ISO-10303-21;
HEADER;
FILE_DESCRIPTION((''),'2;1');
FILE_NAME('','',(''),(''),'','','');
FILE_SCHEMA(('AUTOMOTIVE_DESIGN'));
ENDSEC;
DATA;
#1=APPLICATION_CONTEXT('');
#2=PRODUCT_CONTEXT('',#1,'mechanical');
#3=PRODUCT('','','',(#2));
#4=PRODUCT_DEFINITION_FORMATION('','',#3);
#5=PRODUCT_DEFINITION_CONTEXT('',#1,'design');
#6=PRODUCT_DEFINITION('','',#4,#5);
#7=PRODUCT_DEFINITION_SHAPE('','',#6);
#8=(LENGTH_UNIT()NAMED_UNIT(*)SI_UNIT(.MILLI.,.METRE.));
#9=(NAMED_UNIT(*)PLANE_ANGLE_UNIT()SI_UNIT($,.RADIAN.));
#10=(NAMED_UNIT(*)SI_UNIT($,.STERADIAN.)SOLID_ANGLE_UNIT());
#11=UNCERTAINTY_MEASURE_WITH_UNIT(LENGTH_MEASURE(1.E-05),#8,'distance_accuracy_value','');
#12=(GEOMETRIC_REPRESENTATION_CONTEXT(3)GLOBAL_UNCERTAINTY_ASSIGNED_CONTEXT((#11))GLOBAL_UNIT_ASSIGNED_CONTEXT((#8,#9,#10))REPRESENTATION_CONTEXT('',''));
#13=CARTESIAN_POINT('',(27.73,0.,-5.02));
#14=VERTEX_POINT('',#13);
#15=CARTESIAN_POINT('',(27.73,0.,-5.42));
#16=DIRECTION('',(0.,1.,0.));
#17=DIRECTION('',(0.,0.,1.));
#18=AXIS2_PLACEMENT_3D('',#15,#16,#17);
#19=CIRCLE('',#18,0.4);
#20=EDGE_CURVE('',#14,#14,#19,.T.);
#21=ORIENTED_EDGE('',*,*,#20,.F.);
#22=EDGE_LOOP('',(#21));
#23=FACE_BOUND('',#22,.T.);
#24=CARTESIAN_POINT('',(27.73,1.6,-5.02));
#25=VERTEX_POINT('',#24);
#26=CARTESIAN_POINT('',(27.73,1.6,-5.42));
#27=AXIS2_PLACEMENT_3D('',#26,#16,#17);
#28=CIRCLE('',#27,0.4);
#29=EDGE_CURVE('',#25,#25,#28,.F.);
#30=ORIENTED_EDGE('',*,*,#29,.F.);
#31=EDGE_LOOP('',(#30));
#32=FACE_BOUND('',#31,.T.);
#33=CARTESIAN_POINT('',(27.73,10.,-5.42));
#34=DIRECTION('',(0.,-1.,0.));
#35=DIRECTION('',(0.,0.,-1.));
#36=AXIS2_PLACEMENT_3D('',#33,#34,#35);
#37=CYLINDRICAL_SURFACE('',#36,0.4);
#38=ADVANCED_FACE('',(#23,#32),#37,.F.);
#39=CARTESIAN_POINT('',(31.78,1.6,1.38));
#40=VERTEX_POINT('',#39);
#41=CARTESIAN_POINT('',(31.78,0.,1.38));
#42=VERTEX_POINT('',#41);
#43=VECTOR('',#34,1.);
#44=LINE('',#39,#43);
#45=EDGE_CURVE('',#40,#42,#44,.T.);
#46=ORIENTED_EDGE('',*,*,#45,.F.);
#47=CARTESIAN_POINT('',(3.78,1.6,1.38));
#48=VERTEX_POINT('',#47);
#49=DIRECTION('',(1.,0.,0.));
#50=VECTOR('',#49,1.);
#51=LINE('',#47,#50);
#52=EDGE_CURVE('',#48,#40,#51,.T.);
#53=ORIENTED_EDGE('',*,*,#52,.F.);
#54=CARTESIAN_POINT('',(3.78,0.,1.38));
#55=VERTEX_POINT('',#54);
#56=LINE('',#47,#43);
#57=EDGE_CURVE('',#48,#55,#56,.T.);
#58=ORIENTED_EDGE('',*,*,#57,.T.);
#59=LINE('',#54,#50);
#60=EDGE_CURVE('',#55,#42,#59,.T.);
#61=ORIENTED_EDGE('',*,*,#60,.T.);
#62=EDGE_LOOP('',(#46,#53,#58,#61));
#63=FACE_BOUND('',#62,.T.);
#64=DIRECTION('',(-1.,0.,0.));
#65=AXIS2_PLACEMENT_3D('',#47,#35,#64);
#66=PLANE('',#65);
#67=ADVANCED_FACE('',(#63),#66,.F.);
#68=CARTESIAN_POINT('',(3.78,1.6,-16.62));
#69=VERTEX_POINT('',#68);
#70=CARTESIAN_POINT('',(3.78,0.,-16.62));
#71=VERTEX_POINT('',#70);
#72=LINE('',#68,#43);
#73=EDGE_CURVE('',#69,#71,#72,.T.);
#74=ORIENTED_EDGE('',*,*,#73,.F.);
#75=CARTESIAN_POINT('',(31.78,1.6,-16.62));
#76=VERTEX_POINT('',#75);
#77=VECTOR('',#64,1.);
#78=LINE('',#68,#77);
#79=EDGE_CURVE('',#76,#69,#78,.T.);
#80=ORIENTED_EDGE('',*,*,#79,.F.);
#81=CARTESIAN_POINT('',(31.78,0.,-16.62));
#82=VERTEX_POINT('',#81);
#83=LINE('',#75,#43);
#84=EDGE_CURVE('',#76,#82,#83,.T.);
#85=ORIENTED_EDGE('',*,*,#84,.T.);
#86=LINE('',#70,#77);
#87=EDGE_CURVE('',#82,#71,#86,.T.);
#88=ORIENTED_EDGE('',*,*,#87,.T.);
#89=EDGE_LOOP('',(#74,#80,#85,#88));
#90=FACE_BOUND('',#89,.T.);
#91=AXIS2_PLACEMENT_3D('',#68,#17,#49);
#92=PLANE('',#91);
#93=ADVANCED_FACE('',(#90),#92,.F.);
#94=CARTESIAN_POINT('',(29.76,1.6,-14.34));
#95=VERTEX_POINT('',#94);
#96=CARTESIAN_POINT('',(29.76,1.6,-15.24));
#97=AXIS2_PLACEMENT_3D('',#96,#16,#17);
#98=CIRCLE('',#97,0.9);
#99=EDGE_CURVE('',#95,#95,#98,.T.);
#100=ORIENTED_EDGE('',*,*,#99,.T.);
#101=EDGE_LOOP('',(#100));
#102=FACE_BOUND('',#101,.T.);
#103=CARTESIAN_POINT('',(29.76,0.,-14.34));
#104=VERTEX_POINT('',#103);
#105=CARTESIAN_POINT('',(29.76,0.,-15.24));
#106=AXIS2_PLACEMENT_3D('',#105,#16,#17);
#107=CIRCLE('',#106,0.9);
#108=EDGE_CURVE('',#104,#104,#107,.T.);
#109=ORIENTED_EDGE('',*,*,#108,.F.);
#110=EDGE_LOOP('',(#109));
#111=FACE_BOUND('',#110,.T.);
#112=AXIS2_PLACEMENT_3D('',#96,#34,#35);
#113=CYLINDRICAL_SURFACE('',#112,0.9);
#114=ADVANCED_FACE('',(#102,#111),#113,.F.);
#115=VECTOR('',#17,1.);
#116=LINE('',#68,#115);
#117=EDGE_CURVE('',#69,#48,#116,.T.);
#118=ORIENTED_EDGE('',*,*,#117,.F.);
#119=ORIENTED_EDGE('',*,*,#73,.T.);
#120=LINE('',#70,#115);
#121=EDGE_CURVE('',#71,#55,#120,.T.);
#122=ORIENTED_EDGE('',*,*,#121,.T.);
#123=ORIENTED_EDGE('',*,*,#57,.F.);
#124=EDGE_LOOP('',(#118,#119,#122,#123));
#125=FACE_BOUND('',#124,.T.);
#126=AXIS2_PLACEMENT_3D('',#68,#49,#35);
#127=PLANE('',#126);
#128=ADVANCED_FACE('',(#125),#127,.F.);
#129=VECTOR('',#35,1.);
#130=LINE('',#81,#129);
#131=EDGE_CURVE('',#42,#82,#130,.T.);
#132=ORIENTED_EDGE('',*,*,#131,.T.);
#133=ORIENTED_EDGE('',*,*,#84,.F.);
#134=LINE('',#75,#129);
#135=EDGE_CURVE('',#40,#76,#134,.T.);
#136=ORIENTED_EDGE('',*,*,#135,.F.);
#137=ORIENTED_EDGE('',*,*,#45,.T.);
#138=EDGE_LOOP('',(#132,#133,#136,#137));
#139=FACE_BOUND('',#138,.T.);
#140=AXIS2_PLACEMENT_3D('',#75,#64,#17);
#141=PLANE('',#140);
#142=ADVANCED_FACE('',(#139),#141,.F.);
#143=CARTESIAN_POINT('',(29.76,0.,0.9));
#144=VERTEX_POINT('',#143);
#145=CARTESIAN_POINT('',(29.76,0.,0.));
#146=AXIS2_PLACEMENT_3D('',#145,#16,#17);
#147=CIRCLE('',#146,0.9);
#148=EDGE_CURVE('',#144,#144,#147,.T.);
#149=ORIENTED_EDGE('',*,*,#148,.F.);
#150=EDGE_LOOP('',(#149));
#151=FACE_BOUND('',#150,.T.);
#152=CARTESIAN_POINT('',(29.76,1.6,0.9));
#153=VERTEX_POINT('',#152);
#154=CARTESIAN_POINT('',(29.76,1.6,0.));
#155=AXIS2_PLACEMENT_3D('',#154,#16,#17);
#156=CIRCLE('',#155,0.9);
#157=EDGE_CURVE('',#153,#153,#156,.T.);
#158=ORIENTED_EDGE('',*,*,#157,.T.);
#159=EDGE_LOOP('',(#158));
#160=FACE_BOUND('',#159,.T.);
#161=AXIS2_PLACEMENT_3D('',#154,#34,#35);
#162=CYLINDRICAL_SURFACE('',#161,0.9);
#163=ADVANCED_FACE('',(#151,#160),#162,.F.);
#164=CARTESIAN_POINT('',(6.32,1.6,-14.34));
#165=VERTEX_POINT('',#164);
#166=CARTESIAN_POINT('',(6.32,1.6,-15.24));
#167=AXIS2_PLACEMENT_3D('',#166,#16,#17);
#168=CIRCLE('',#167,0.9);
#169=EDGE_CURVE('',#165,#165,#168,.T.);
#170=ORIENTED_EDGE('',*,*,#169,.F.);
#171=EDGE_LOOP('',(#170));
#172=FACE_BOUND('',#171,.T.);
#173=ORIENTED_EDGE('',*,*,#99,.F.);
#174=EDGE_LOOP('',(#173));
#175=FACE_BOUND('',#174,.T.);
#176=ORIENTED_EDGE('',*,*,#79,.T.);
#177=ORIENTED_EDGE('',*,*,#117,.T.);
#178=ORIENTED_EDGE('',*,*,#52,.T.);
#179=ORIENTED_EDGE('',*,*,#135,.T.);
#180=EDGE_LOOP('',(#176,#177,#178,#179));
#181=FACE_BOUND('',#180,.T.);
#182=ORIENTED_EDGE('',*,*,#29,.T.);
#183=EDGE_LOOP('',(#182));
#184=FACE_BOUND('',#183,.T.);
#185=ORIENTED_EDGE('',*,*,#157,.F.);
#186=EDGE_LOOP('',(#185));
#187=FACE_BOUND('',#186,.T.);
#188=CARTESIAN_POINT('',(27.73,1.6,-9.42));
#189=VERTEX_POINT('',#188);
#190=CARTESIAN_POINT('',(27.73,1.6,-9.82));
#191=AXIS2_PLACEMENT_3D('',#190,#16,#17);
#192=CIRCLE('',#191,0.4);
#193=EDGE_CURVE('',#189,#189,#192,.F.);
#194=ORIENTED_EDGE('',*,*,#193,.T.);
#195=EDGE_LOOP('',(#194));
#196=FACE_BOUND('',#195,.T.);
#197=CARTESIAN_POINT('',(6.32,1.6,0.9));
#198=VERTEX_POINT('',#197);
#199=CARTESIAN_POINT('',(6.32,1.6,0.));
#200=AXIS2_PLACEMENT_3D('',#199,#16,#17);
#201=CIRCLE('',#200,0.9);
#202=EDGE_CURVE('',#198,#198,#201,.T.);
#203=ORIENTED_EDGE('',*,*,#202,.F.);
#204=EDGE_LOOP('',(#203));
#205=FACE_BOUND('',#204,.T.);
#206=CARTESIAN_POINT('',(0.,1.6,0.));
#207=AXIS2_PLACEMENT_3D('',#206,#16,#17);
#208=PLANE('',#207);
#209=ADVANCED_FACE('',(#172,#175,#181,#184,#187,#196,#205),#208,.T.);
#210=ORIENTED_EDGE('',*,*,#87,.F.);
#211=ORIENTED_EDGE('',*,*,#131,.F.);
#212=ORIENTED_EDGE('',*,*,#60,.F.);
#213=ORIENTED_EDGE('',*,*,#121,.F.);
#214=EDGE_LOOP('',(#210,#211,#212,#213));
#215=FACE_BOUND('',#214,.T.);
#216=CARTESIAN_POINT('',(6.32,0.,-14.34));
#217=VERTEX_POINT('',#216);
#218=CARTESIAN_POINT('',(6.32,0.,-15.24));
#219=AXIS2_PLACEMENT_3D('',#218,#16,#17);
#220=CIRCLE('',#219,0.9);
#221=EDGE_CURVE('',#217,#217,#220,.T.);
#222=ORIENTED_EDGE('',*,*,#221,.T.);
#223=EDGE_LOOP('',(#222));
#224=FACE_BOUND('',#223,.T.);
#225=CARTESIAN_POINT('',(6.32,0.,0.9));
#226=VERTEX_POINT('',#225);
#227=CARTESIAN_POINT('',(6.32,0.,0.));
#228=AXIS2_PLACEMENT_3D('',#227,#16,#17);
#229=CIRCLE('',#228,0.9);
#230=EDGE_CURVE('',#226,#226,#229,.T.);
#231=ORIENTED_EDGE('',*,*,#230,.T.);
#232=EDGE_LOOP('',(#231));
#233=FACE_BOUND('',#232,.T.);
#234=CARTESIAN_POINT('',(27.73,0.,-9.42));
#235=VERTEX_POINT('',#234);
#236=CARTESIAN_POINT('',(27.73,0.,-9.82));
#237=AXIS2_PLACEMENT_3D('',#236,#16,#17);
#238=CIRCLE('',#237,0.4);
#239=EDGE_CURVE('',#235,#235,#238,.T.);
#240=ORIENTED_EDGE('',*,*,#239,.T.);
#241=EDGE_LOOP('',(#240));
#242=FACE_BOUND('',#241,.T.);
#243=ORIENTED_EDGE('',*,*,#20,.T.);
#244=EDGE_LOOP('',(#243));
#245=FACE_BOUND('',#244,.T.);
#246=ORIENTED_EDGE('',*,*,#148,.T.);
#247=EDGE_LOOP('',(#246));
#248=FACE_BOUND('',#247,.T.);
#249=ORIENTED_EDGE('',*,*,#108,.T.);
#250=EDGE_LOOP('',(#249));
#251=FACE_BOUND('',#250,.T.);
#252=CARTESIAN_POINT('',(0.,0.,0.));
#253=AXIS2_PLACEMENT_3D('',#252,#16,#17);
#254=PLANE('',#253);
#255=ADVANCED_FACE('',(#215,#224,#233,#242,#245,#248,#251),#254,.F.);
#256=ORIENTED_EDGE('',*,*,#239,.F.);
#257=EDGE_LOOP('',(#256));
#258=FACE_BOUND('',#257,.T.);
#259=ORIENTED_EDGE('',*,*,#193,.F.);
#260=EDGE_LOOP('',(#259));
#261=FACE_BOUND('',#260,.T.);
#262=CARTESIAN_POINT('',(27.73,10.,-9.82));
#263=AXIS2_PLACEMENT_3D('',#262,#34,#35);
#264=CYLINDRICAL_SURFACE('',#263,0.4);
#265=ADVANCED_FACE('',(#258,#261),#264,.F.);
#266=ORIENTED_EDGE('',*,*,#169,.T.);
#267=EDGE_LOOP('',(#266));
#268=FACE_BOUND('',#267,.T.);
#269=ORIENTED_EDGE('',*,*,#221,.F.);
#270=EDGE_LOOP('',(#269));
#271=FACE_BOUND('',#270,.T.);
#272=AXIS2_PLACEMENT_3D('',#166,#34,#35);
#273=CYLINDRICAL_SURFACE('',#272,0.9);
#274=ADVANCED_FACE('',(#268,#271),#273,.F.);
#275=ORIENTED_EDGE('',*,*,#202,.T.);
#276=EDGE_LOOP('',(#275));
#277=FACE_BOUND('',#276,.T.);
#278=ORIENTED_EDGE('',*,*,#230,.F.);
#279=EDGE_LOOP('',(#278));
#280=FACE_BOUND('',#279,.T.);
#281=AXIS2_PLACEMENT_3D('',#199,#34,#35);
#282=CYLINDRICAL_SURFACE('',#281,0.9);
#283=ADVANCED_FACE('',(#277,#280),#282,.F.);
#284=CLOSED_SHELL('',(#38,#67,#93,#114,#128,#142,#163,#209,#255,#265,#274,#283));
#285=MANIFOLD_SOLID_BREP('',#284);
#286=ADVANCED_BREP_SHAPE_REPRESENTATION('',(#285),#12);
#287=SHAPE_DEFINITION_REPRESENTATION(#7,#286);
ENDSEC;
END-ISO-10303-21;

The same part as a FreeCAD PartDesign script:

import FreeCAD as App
import Part
import Sketcher

V = App.Vector

doc = App.newDocument("Part")
body = doc.addObject("PartDesign::Body", "Body")

# Sketch on XZ plane
sketch1 = doc.addObject("Sketcher::SketchObject", "Sketch")
body.addObject(sketch1)
sketch1.AttachmentSupport = (doc.XZ_Plane, [""])
sketch1.MapMode = "FlatFace"
sketch1.addGeometry(Part.LineSegment(V(3.78, -16.62, 0), V(3.78, 1.38, 0)), False)
sketch1.addGeometry(Part.LineSegment(V(3.78, 1.38, 0), V(31.78, 1.38, 0)), False)
sketch1.addGeometry(Part.LineSegment(V(31.78, 1.38, 0), V(31.78, -16.62, 0)), False)
sketch1.addGeometry(Part.LineSegment(V(31.78, -16.62, 0), V(3.78, -16.62, 0)), False)
sketch1.addConstraint(Sketcher.Constraint("Coincident", 0, 2, 1, 1))
sketch1.addConstraint(Sketcher.Constraint("Coincident", 1, 2, 2, 1))
sketch1.addConstraint(Sketcher.Constraint("Coincident", 2, 2, 3, 1))
sketch1.addConstraint(Sketcher.Constraint("Coincident", 3, 2, 0, 1))
sketch1.addConstraint(Sketcher.Constraint("Vertical", 0))
sketch1.addConstraint(Sketcher.Constraint("Horizontal", 1))
sketch1.addConstraint(Sketcher.Constraint("Vertical", 2))
sketch1.addConstraint(Sketcher.Constraint("Horizontal", 3))
sketch1.addConstraint(Sketcher.Constraint("DistanceX", 1, 1, 1, 2, 28.0))
sketch1.addConstraint(Sketcher.Constraint("DistanceY", 0, 1, 0, 2, 18.0))
sketch1.addConstraint(Sketcher.Constraint("DistanceX", -1, 1, 0, 2, 3.78))
sketch1.addConstraint(Sketcher.Constraint("DistanceY", -1, 1, 0, 2, 1.38))
pad1 = doc.addObject("PartDesign::Pad", "Pad")
body.addObject(pad1)
pad1.Profile = sketch1
pad1.Length = 1.6
pad1.Reversed = True

# Sketch on XZ plane
sketch2 = doc.addObject("Sketcher::SketchObject", "Sketch001")
body.addObject(sketch2)
sketch2.AttachmentSupport = (doc.XZ_Plane, [""])
sketch2.MapMode = "FlatFace"
sketch2.addGeometry(Part.Circle(V(29.76, -15.24, 0), V(0, 0, 1), 0.9), False)
sketch2.addGeometry(Part.Circle(V(29.76, 0, 0), V(0, 0, 1), 0.9), False)
sketch2.addGeometry(Part.Circle(V(6.32, 0, 0), V(0, 0, 1), 0.9), False)
sketch2.addGeometry(Part.Circle(V(6.32, -15.24, 0), V(0, 0, 1), 0.9), False)
sketch2.addConstraint(Sketcher.Constraint("Equal", 0, 1))
sketch2.addConstraint(Sketcher.Constraint("Equal", 1, 2))
sketch2.addConstraint(Sketcher.Constraint("Equal", 2, 3))
sketch2.addConstraint(Sketcher.Constraint("PointOnObject", 1, 3, -1))
sketch2.addConstraint(Sketcher.Constraint("PointOnObject", 2, 3, -1))
sketch2.addConstraint(Sketcher.Constraint("Horizontal", 0, 3, 3, 3))
sketch2.addConstraint(Sketcher.Constraint("Vertical", 0, 3, 1, 3))
sketch2.addConstraint(Sketcher.Constraint("Vertical", 2, 3, 3, 3))
sketch2.addConstraint(Sketcher.Constraint("Diameter", 0, 1.8))
sketch2.addConstraint(Sketcher.Constraint("DistanceX", -1, 1, 0, 3, 29.76))
sketch2.addConstraint(Sketcher.Constraint("DistanceY", 0, 3, -1, 1, 15.24))
sketch2.addConstraint(Sketcher.Constraint("DistanceX", -1, 1, 2, 3, 6.32))
pocket1 = doc.addObject("PartDesign::Pocket", "Pocket")
body.addObject(pocket1)
pocket1.Profile = sketch2
pocket1.Length = 1.6

# Sketch on XZ plane
sketch3 = doc.addObject("Sketcher::SketchObject", "Sketch002")
body.addObject(sketch3)
sketch3.AttachmentSupport = (doc.XZ_Plane, [""])
sketch3.MapMode = "FlatFace"
sketch3.addGeometry(Part.Circle(V(27.73, -5.42, 0), V(0, 0, 1), 0.4), False)
sketch3.addGeometry(Part.Circle(V(27.73, -9.82, 0), V(0, 0, 1), 0.4), False)
sketch3.addConstraint(Sketcher.Constraint("Equal", 0, 1))
sketch3.addConstraint(Sketcher.Constraint("Vertical", 0, 3, 1, 3))
sketch3.addConstraint(Sketcher.Constraint("Diameter", 0, 0.8))
sketch3.addConstraint(Sketcher.Constraint("DistanceY", 1, 3, 0, 3, 4.4))
sketch3.addConstraint(Sketcher.Constraint("DistanceX", -1, 1, 0, 3, 27.73))
sketch3.addConstraint(Sketcher.Constraint("DistanceY", 0, 3, -1, 1, 5.42))
pocket2 = doc.addObject("PartDesign::Pocket", "Pocket001")
body.addObject(pocket2)
pocket2.Profile = sketch3
pocket2.Length = 10

doc.recompute()
